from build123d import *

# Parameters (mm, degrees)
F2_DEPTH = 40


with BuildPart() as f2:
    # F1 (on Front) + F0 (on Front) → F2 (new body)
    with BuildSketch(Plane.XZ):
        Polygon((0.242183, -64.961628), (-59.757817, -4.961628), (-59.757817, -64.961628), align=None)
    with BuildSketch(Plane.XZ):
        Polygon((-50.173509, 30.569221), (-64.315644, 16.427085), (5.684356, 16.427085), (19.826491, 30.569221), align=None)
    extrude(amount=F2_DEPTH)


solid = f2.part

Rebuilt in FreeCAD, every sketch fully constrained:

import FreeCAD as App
import Part
import Sketcher

V = App.Vector

doc = App.newDocument("Part")
body = doc.addObject("PartDesign::Body", "Body")
body.AllowCompound = True

sketch1 = body.newObject("Sketcher::SketchObject", "Sketch")
sketch1.AttachmentSupport = (doc.getObject("XZ_Plane"), [""])
sketch1.MapMode = "FlatFace"
sketch1.addGeometry([
    Part.LineSegment(V(0.242183, -64.961628, 0), V(-59.757817, -4.961628, 0)),
    Part.LineSegment(V(-59.757817, -4.961628, 0), V(-59.757817, -64.961628, 0)),
    Part.LineSegment(V(-59.757817, -64.961628, 0), V(0.242183, -64.961628, 0)),
    Part.LineSegment(V(-50.173509, 30.569221, 0), V(-64.315644, 16.427085, 0)),
    Part.LineSegment(V(-64.315644, 16.427085, 0), V(5.684356, 16.427085, 0)),
    Part.LineSegment(V(5.684356, 16.427085, 0), V(19.826491, 30.569221, 0)),
    Part.LineSegment(V(19.826491, 30.569221, 0), V(-50.173509, 30.569221, 0)),
], False)
sketch1.addConstraint([
    Sketcher.Constraint("Coincident", 0, 2, 1, 1),
    Sketcher.Constraint("Coincident", 1, 2, 2, 1),
    Sketcher.Constraint("Coincident", 2, 2, 0, 1),
    Sketcher.Constraint("Coincident", 3, 2, 4, 1),
    Sketcher.Constraint("Coincident", 4, 2, 5, 1),
    Sketcher.Constraint("Coincident", 5, 2, 6, 1),
    Sketcher.Constraint("Coincident", 6, 2, 3, 1),
    Sketcher.Constraint("Vertical", 1),
    Sketcher.Constraint("Horizontal", 2),
    Sketcher.Constraint("Horizontal", 4),
    Sketcher.Constraint("Horizontal", 6),
    Sketcher.Constraint("Perpendicular", 0, 3),
    Sketcher.Constraint("Parallel", 3, 5),
    Sketcher.Constraint("Equal", 2, 1),
    Sketcher.Constraint("DistanceX", 2, 1, 2, 2, 60.0),
    Sketcher.Constraint("DistanceX", 4, 1, 4, 2, 70.0),
    Sketcher.Constraint("Distance", 3, 20.0),
    Sketcher.Constraint("DistanceY", 1, 2, -1, 1, 64.961628),
    Sketcher.Constraint("DistanceX", -1, 1, 5, 2, 19.826491),
    Sketcher.Constraint("DistanceY", -1, 1, 5, 2, 30.569221),
    Sketcher.Constraint("DistanceX", 0, 2, 5, 2, 79.584308),
])
pad1 = body.newObject("PartDesign::Pad", "Pad")
pad1.Profile = sketch1
pad1.Length = 40

doc.recompute()
